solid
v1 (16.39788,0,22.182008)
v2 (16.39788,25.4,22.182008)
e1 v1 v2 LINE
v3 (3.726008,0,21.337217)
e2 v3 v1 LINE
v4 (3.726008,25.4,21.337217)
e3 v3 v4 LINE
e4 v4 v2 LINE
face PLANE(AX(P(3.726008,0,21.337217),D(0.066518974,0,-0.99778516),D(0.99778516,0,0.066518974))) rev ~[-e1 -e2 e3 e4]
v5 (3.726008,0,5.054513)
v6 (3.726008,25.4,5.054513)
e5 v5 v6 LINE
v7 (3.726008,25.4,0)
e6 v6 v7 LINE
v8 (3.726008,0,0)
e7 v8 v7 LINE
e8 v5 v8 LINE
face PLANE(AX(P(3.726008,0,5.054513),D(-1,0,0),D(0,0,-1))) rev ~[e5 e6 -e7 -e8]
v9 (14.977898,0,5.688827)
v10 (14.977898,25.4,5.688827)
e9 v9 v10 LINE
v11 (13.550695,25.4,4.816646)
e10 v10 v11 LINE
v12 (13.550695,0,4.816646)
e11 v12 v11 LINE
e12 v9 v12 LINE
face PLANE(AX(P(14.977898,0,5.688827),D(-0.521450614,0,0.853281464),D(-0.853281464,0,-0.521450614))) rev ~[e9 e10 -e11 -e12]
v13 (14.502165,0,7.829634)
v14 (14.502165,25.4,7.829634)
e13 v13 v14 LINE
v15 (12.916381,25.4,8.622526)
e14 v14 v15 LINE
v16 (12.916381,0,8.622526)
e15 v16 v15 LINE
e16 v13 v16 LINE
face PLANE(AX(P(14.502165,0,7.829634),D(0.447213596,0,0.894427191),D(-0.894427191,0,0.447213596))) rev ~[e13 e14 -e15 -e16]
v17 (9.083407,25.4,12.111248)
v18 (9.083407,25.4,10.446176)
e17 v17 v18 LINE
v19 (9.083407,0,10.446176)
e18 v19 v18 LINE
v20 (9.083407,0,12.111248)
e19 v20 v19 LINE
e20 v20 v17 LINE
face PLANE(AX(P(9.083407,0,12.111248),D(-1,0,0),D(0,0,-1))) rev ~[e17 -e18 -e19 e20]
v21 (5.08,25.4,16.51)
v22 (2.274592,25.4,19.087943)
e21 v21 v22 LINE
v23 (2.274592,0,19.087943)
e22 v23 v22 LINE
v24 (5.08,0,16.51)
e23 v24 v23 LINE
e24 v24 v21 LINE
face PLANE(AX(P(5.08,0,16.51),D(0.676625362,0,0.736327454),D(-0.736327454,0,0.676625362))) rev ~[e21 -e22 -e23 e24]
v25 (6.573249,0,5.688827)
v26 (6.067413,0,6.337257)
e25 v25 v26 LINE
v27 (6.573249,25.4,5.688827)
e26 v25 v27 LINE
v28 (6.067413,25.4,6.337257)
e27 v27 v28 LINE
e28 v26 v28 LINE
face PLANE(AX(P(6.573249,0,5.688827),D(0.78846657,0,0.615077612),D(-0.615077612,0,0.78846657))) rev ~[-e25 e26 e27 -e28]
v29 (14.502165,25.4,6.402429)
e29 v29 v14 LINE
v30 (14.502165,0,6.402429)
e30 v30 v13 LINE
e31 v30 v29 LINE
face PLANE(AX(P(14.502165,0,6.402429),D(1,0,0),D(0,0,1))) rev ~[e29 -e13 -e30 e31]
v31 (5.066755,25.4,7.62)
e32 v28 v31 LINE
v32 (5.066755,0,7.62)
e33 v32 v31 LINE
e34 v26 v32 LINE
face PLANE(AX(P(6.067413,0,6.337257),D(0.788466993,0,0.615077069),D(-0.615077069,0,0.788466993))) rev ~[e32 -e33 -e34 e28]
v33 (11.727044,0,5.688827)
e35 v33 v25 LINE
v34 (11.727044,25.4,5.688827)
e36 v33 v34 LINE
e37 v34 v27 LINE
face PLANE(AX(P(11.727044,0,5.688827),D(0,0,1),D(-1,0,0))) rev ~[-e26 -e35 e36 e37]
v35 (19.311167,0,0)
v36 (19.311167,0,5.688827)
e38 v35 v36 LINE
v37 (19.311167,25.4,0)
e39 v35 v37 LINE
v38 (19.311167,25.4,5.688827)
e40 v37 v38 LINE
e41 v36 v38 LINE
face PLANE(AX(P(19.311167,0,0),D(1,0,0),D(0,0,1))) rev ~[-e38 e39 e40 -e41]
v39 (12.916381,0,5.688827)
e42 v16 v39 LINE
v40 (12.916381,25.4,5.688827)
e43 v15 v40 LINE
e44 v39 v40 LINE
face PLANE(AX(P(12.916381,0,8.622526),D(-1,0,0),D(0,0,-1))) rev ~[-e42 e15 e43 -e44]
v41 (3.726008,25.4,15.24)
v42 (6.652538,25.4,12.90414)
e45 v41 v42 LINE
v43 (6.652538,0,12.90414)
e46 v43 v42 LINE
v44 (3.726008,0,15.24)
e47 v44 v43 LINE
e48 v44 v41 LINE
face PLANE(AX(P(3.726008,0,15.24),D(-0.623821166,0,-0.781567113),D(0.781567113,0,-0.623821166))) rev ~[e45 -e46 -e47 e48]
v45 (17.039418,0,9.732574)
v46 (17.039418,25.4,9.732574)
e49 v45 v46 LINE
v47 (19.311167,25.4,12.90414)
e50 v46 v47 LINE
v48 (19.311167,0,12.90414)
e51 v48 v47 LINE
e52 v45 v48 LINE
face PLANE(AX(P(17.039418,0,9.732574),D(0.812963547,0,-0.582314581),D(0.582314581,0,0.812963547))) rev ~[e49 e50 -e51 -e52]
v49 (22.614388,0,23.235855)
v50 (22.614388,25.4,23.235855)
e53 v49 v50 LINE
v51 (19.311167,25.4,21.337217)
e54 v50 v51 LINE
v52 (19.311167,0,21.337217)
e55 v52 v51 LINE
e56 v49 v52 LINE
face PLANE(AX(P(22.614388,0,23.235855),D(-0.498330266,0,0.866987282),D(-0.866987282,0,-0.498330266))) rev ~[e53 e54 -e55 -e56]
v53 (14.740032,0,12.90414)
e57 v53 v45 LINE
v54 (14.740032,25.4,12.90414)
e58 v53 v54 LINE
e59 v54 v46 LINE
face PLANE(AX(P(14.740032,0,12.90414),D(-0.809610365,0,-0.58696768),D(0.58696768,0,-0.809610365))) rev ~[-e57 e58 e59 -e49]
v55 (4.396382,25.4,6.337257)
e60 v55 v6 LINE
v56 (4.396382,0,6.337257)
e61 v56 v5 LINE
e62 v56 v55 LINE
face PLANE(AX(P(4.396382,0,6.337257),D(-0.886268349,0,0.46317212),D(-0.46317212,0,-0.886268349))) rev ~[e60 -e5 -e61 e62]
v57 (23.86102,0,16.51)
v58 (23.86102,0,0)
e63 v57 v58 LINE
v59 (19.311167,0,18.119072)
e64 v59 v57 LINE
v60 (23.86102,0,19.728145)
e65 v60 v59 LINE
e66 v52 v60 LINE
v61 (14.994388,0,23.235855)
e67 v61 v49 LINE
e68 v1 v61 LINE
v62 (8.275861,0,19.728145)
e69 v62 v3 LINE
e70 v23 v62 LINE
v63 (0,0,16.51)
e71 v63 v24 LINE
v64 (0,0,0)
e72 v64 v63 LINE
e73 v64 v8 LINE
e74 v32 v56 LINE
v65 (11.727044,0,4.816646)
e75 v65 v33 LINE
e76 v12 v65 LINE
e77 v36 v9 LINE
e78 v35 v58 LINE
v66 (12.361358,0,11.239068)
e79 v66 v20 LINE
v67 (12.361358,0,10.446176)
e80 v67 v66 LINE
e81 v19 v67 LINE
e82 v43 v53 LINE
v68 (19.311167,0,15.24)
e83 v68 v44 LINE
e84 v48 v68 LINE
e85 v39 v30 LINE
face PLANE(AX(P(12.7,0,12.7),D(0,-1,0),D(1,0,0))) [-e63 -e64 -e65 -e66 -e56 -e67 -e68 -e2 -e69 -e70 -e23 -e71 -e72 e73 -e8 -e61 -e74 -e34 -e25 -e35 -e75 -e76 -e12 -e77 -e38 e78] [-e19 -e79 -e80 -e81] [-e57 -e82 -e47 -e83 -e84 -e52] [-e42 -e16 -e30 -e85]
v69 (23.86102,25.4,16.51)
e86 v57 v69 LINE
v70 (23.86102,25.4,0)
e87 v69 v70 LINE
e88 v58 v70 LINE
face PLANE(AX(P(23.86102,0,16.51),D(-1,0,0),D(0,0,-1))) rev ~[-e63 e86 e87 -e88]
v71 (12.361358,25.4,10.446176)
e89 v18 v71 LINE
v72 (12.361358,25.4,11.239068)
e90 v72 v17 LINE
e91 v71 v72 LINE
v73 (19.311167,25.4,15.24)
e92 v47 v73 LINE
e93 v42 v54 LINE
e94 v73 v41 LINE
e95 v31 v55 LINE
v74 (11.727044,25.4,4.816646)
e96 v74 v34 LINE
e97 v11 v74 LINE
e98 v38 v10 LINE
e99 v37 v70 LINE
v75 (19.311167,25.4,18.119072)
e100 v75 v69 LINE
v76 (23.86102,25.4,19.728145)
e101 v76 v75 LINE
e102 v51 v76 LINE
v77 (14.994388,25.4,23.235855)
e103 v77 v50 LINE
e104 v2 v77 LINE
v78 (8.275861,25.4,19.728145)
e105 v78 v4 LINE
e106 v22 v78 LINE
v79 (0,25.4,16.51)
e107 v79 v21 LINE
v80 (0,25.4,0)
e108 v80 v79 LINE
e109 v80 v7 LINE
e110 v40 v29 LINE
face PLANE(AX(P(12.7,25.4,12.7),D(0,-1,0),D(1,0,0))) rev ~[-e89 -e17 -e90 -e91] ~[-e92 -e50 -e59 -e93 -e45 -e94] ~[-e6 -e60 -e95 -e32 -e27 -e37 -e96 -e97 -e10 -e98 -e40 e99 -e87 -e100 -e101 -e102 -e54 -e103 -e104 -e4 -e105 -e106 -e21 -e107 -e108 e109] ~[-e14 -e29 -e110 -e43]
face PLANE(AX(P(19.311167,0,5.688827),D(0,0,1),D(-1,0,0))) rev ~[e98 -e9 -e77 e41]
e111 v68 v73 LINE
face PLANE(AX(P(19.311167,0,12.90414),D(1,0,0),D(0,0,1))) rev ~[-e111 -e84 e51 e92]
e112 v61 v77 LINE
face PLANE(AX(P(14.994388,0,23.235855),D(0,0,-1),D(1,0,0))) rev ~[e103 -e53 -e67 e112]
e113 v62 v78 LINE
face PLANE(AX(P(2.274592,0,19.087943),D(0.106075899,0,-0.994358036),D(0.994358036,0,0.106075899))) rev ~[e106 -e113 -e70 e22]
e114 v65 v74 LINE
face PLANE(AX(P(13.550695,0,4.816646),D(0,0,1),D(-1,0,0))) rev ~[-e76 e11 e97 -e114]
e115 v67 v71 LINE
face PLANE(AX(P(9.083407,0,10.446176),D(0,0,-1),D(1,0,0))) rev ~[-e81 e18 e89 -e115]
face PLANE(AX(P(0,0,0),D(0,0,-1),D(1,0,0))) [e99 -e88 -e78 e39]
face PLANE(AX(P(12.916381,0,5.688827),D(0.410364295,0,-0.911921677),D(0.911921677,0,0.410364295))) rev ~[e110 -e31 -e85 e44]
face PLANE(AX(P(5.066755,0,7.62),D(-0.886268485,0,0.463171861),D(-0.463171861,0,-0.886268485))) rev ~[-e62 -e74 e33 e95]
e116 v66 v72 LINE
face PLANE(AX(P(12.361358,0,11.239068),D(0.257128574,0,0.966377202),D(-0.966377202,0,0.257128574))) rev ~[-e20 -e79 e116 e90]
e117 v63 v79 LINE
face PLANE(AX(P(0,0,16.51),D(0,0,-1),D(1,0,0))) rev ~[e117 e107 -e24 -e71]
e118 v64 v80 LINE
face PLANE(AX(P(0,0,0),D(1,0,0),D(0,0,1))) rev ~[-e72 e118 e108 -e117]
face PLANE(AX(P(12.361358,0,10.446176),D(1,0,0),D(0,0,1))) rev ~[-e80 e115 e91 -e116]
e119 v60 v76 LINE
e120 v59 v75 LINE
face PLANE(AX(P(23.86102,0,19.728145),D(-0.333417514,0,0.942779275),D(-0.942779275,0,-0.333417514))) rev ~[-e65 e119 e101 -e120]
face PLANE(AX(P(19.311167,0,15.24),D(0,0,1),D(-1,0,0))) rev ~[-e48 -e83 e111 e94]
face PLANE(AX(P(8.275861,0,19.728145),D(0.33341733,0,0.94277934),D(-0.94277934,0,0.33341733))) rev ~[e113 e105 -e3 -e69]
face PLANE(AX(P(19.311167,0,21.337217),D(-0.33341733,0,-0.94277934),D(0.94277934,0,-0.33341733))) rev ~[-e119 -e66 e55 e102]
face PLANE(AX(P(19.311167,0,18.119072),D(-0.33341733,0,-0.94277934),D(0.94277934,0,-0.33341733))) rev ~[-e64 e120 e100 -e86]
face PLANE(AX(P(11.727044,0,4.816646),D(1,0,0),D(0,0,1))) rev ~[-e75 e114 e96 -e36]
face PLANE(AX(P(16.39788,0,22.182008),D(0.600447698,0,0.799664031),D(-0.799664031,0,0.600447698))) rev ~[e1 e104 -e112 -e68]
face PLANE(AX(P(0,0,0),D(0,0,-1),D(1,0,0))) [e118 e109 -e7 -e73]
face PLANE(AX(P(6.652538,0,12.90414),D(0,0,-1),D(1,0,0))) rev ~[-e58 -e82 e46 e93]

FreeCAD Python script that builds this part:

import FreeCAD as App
import Part
import Sketcher
Q = App.Units.Quantity

doc = App.newDocument("Part")
body = doc.addObject("PartDesign::Body", "Body")

# Sketch on XZ plane
sketch1 = body.newObject("Sketcher::SketchObject", "Sketch")
sketch1.AttachmentSupport = (doc.getObject("XZ_Plane"), [""])
sketch1.MapMode = "FlatFace"
sketch1.addGeometry([
    Part.LineSegment(App.Vector(0, 25.4, 0), App.Vector(0, 0, 0)),
    Part.LineSegment(App.Vector(0, 0, 0), App.Vector(25.4, 0, 0)),
    Part.LineSegment(App.Vector(25.4, 0, 0), App.Vector(25.4, 25.4, 0)),
    Part.LineSegment(App.Vector(25.4, 25.4, 0), App.Vector(0, 25.4, 0)),
], False)
sketch1.addConstraint([
    Sketcher.Constraint("Coincident", 0, 2, 1, 1),
    Sketcher.Constraint("Coincident", 1, 2, 2, 1),
    Sketcher.Constraint("Coincident", 2, 2, 3, 1),
    Sketcher.Constraint("Coincident", 3, 2, 0, 1),
    Sketcher.Constraint("Vertical", 0),
    Sketcher.Constraint("Horizontal", 1),
    Sketcher.Constraint("Vertical", 2),
    Sketcher.Constraint("Horizontal", 3),
    Sketcher.Constraint("Coincident", 0, 2, -1, 1),
    Sketcher.Constraint("Equal", 3, 0),
    Sketcher.Constraint("DistanceX", 1, 1, 1, 2, Q("1 in")),
])
pad1 = body.newObject("PartDesign::Pad", "Pad")
pad1.Profile = sketch1
pad1.Length = Q("1 in")
pad1.Reversed = True

# Sketch on XZ plane
sketch2 = body.newObject("Sketcher::SketchObject", "Sketch001")
sketch2.AttachmentSupport = (doc.getObject("XZ_Plane"), [""])
sketch2.MapMode = "FlatFace"
sketch2.addGeometry([
    Part.LineSegment(App.Vector(0, 25.4, 0), App.Vector(0, 16.51, 0)),  # 0
    Part.LineSegment(App.Vector(0, 16.51, 0), App.Vector(5.08, 16.51, 0)),  # 1
    Part.LineSegment(App.Vector(5.08, 16.51, 0), App.Vector(2.274592, 19.087943, 0)),  # 2
    Part.LineSegment(App.Vector(2.274592, 19.087943, 0), App.Vector(8.275861, 19.728145, 0)),  # 3
    Part.LineSegment(App.Vector(8.275861, 19.728145, 0), App.Vector(3.726008, 21.337217, 0)),  # 4
    Part.LineSegment(App.Vector(3.726008, 21.337217, 0), App.Vector(16.39788, 22.182008, 0)),  # 5
    Part.LineSegment(App.Vector(16.39788, 22.182008, 0), App.Vector(14.994388, 23.235855, 0)),  # 6
    Part.LineSegment(App.Vector(14.994388, 23.235855, 0), App.Vector(22.614388, 23.235855, 0)),  # 7
    Part.LineSegment(App.Vector(22.614388, 23.235855, 0), App.Vector(19.311167, 21.337217, 0)),  # 8
    Part.LineSegment(App.Vector(19.311167, 21.337217, 0), App.Vector(23.86102, 19.728145, 0)),  # 9
    Part.LineSegment(App.Vector(23.86102, 19.728145, 0), App.Vector(19.311167, 18.119072, 0)),  # 10
    Part.LineSegment(App.Vector(19.311167, 18.119072, 0), App.Vector(23.86102, 16.51, 0)),  # 11
    Part.LineSegment(App.Vector(23.86102, 16.51, 0), App.Vector(23.86102, 0, 0)),  # 12
    Part.LineSegment(App.Vector(23.86102, 0, 0), App.Vector(25.4, 0, 0)),  # 13
    Part.LineSegment(App.Vector(25.4, 0, 0), App.Vector(25.4, 25.4, 0)),  # 14
    Part.LineSegment(App.Vector(25.4, 25.4, 0), App.Vector(0, 25.4, 0)),  # 15
    Part.LineSegment(App.Vector(3.726008, 15.24, 0), App.Vector(6.652538, 12.90414, 0)),  # 16
    Part.LineSegment(App.Vector(6.652538, 12.90414, 0), App.Vector(14.740032, 12.90414, 0)),  # 17
    Part.LineSegment(App.Vector(14.740032, 12.90414, 0), App.Vector(17.039418, 9.732574, 0)),  # 18
    Part.LineSegment(App.Vector(17.039418, 9.732574, 0), App.Vector(19.311167, 12.90414, 0)),  # 19
    Part.LineSegment(App.Vector(19.311167, 12.90414, 0), App.Vector(19.311167, 15.24, 0)),  # 20
    Part.LineSegment(App.Vector(19.311167, 15.24, 0), App.Vector(3.726008, 15.24, 0)),  # 21
    Part.LineSegment(App.Vector(3.726008, 5.054513, 0), App.Vector(3.726008, 0, 0)),  # 22
    Part.LineSegment(App.Vector(3.726008, 0, 0), App.Vector(19.311167, 0, 0)),  # 23
    Part.LineSegment(App.Vector(19.311167, 0, 0), App.Vector(19.311167, 5.688827, 0)),  # 24
    Part.LineSegment(App.Vector(19.311167, 5.688827, 0), App.Vector(14.977898, 5.688827, 0)),  # 25
    Part.LineSegment(App.Vector(14.977898, 5.688827, 0), App.Vector(13.550695, 4.816646, 0)),  # 26
    Part.LineSegment(App.Vector(13.550695, 4.816646, 0), App.Vector(11.727044, 4.816646, 0)),  # 27
    Part.LineSegment(App.Vector(11.727044, 4.816646, 0), App.Vector(11.727044, 5.688827, 0)),  # 28
    Part.LineSegment(App.Vector(11.727044, 5.688827, 0), App.Vector(6.573249, 5.688827, 0)),  # 29
    Part.LineSegment(App.Vector(6.573249, 5.688827, 0), App.Vector(6.067413, 6.337257, 0)),  # 30
    Part.LineSegment(App.Vector(6.067413, 6.337257, 0), App.Vector(5.066755, 7.62, 0)),  # 31
    Part.LineSegment(App.Vector(5.066755, 7.62, 0), App.Vector(4.396382, 6.337257, 0)),  # 32
    Part.LineSegment(App.Vector(4.396382, 6.337257, 0), App.Vector(3.726008, 5.054513, 0)),  # 33
    Part.LineSegment(App.Vector(12.916381, 8.622526, 0), App.Vector(12.916381, 5.688827, 0)),  # 34
    Part.LineSegment(App.Vector(12.916381, 5.688827, 0), App.Vector(14.502165, 6.402429, 0)),  # 35
    Part.LineSegment(App.Vector(14.502165, 6.402429, 0), App.Vector(14.502165, 7.829634, 0)),  # 36
    Part.LineSegment(App.Vector(14.502165, 7.829634, 0), App.Vector(12.916381, 8.622526, 0)),  # 37
    Part.LineSegment(App.Vector(12.361358, 11.239068, 0), App.Vector(9.083407, 12.111248, 0)),  # 38
    Part.LineSegment(App.Vector(9.083407, 12.111248, 0), App.Vector(9.083407, 10.446176, 0)),  # 39
    Part.LineSegment(App.Vector(9.083407, 10.446176, 0), App.Vector(12.361358, 10.446176, 0)),  # 40
    Part.LineSegment(App.Vector(12.361358, 10.446176, 0), App.Vector(12.361358, 11.239068, 0)),  # 41
], False)
sketch2.addConstraint([
    Sketcher.Constraint("Coincident", 0, 2, 1, 1),
    Sketcher.Constraint("Coincident", 1, 2, 2, 1),
    Sketcher.Constraint("Coincident", 2, 2, 3, 1),
    Sketcher.Constraint("Coincident", 3, 2, 4, 1),
    Sketcher.Constraint("Coincident", 4, 2, 5, 1),
    Sketcher.Constraint("Coincident", 5, 2, 6, 1),
    Sketcher.Constraint("Coincident", 6, 2, 7, 1),
    Sketcher.Constraint("Coincident", 7, 2, 8, 1),
    Sketcher.Constraint("Coincident", 8, 2, 9, 1),
    Sketcher.Constraint("Coincident", 9, 2, 10, 1),
    Sketcher.Constraint("Coincident", 10, 2, 11, 1),
    Sketcher.Constraint("Coincident", 11, 2, 12, 1),
    Sketcher.Constraint("Coincident", 12, 2, 13, 1),
    Sketcher.Constraint("Coincident", 13, 2, 14, 1),
    Sketcher.Constraint("Coincident", 14, 2, 15, 1),
    Sketcher.Constraint("Coincident", 15, 2, 0, 1),
    Sketcher.Constraint("Coincident", 16, 2, 17, 1),
    Sketcher.Constraint("Coincident", 17, 2, 18, 1),
    Sketcher.Constraint("Coincident", 18, 2, 19, 1),
    Sketcher.Constraint("Coincident", 19, 2, 20, 1),
    Sketcher.Constraint("Coincident", 20, 2, 21, 1),
    Sketcher.Constraint("Coincident", 21, 2, 16, 1),
    Sketcher.Constraint("Coincident", 22, 2, 23, 1),
    Sketcher.Constraint("Coincident", 23, 2, 24, 1),
    Sketcher.Constraint("Coincident", 24, 2, 25, 1),
    Sketcher.Constraint("Coincident", 25, 2, 26, 1),
    Sketcher.Constraint("Coincident", 26, 2, 27, 1),
    Sketcher.Constraint("Coincident", 27, 2, 28, 1),
    Sketcher.Constraint("Coincident", 28, 2, 29, 1),
    Sketcher.Constraint("Coincident", 29, 2, 30, 1),
    Sketcher.Constraint("Coincident", 30, 2, 31, 1),
    Sketcher.Constraint("Coincident", 31, 2, 32, 1),
    Sketcher.Constraint("Coincident", 32, 2, 33, 1),
    Sketcher.Constraint("Coincident", 33, 2, 22, 1),
    Sketcher.Constraint("Coincident", 34, 2, 35, 1),
    Sketcher.Constraint("Coincident", 35, 2, 36, 1),
    Sketcher.Constraint("Coincident", 36, 2, 37, 1),
    Sketcher.Constraint("Coincident", 37, 2, 34, 1),
    Sketcher.Constraint("Coincident", 38, 2, 39, 1),
    Sketcher.Constraint("Coincident", 39, 2, 40, 1),
    Sketcher.Constraint("Coincident", 40, 2, 41, 1),
    Sketcher.Constraint("Coincident", 41, 2, 38, 1),
    Sketcher.Constraint("Vertical", 0),
    Sketcher.Constraint("Horizontal", 1),
    Sketcher.Constraint("Horizontal", 7),
    Sketcher.Constraint("Vertical", 12),
    Sketcher.Constraint("Horizontal", 13),
    Sketcher.Constraint("Vertical", 14),
    Sketcher.Constraint("Horizontal", 15),
    Sketcher.Constraint("Horizontal", 17),
    Sketcher.Constraint("Vertical", 20),
    Sketcher.Constraint("Horizontal", 21),
    Sketcher.Constraint("Vertical", 22),
    Sketcher.Constraint("Horizontal", 23),
    Sketcher.Constraint("Vertical", 24),
    Sketcher.Constraint("Horizontal", 25),
    Sketcher.Constraint("Horizontal", 27),
    Sketcher.Constraint("Vertical", 28),
    Sketcher.Constraint("Horizontal", 29),
    Sketcher.Constraint("Vertical", 34),
    Sketcher.Constraint("Vertical", 36),
    Sketcher.Constraint("Vertical", 39),
    Sketcher.Constraint("Horizontal", 40),
    Sketcher.Constraint("Vertical", 41),
    Sketcher.Constraint("PointOnObject", 0, 2, -2),
    Sketcher.Constraint("PointOnObject", 12, 2, -1),
    Sketcher.Constraint("PointOnObject", 22, 2, -1),
    Sketcher.Constraint("Parallel", 4, 9),
    Sketcher.Constraint("Parallel", 9, 11),
    Sketcher.Constraint("Parallel", 30, 31),
    Sketcher.Constraint("Parallel", 32, 33),
    Sketcher.Constraint("Horizontal", 4, 2, 8, 2),
    Sketcher.Constraint("Horizontal", 3, 2, 9, 2),
    Sketcher.Constraint("Horizontal", 1, 2, 11, 2),
    Sketcher.Constraint("Horizontal", 17, 2, 19, 2),
    Sketcher.Constraint("Horizontal", 25, 2, 28, 2),
    Sketcher.Constraint("Horizontal", 30, 2, 32, 2),
    Sketcher.Constraint("Horizontal", 29, 2, 34, 2),
    Sketcher.Constraint("Vertical", 8, 2, 10, 2),
    Sketcher.Constraint("Vertical", 9, 2, 11, 2),
    Sketcher.Constraint("Vertical", 10, 2, 19, 2),
    Sketcher.Constraint("Vertical", 4, 2, 21, 2),
    Sketcher.Constraint("Vertical", 21, 2, 22, 2),
    Sketcher.Constraint("Vertical", 20, 2, 23, 2),
    Sketcher.Constraint("Equal", 15, 14),
    Sketcher.Constraint("Equal", 2, 8),
    Sketcher.Constraint("Equal", 9, 10),
    Sketcher.Constraint("Equal", 32, 33),
    Sketcher.Constraint("DistanceX", 15, 2, 15, 1, Q("1 in")),
    Sketcher.Constraint("DistanceX", 1, 1, 1, 2, Q("0.2 in")),
    Sketcher.Constraint("DistanceX", 7, 1, 7, 2, Q("0.3 in")),
    Sketcher.Constraint("Distance", 5, Q("0.5 in")),
    Sketcher.Constraint("DistanceY", 0, 2, 0, 1, Q("0.35 in")),
    Sketcher.Constraint("DistanceY", -1, 1, 20, 2, Q("0.6 in")),
    Sketcher.Constraint("DistanceY", -1, 1, 31, 2, Q("0.3 in")),
    Sketcher.Constraint("Distance", 2, Q("0.15 in")),
    Sketcher.Constraint("Distance", 4, Q("0.19 in")),
    Sketcher.Constraint("DistanceY", 34, 2, 34, 1, Q("0.1155 in")),
    Sketcher.Constraint("Distance", 38, Q("3.392 mm")),
    Sketcher.Constraint("DistanceX", 13, 1, 13, 2, Q("1.53898 mm")),
    Sketcher.Constraint("DistanceX", 21, 2, 21, 1, Q("15.585159 mm")),
    Sketcher.Constraint("DistanceX", 25, 2, 25, 1, Q("4.333269 mm")),
    Sketcher.Constraint("DistanceX", 27, 2, 27, 1, Q("1.823651 mm")),
    Sketcher.Constraint("DistanceX", 40, 1, 40, 2, Q("3.277951 mm")),
    Sketcher.Constraint("DistanceY", 20, 1, 20, 2, Q("2.33586 mm")),
    Sketcher.Constraint("DistanceY", 28, 1, 28, 2, Q("0.872181 mm")),
    Sketcher.Constraint("DistanceX", 18, 2, 11, 2, Q("6.821602 mm")),
    Sketcher.Constraint("DistanceY", 25, 2, 35, 2, Q("0.713602 mm")),
    Sketcher.Constraint("Distance", 3, Q("6.03532 mm")),
    Sketcher.Constraint("Distance", 16, Q("3.744439 mm")),
    Sketcher.Constraint("Distance", 19, Q("3.90124 mm")),
    Sketcher.Constraint("Distance", 37, Q("1.77296 mm")),
    Sketcher.Constraint("DistanceX", 17, 1, 17, 2, Q("8.087494 mm")),
    Sketcher.Constraint("DistanceX", 29, 2, 29, 1, Q("5.153795 mm")),
    Sketcher.Constraint("DistanceY", 22, 2, 22, 1, Q("5.054513 mm")),
    Sketcher.Constraint("DistanceY", 24, 1, 24, 2, Q("5.688827 mm")),
    Sketcher.Constraint("DistanceY", 36, 1, 36, 2, Q("1.427205 mm")),
    Sketcher.Constraint("DistanceY", 39, 2, 39, 1, Q("1.665072 mm")),
    Sketcher.Constraint("DistanceX", -1, 1, 4, 2, Q("3.726008 mm")),
    Sketcher.Constraint("DistanceX", -1, 1, 5, 2, Q("16.39788 mm")),
    Sketcher.Constraint("DistanceX", -1, 1, 6, 2, Q("14.994388 mm")),
    Sketcher.Constraint("DistanceX", -1, 1, 29, 2, Q("6.573249 mm")),
    Sketcher.Constraint("DistanceX", -1, 1, 34, 2, Q("12.916381 mm")),
    Sketcher.Constraint("DistanceX", 30, 2, 28, 2, Q("5.659631 mm")),
    Sketcher.Constraint("DistanceX", 16, 2, 38, 2, Q("2.430869 mm")),
    Sketcher.Constraint("DistanceY", 37, 2, 38, 2, Q("3.488722 mm")),
])
pocket1 = body.newObject("PartDesign::Pocket", "Pocket")
pocket1.Profile = sketch2
pocket1.Length = Q("1 in")

doc.recompute()
